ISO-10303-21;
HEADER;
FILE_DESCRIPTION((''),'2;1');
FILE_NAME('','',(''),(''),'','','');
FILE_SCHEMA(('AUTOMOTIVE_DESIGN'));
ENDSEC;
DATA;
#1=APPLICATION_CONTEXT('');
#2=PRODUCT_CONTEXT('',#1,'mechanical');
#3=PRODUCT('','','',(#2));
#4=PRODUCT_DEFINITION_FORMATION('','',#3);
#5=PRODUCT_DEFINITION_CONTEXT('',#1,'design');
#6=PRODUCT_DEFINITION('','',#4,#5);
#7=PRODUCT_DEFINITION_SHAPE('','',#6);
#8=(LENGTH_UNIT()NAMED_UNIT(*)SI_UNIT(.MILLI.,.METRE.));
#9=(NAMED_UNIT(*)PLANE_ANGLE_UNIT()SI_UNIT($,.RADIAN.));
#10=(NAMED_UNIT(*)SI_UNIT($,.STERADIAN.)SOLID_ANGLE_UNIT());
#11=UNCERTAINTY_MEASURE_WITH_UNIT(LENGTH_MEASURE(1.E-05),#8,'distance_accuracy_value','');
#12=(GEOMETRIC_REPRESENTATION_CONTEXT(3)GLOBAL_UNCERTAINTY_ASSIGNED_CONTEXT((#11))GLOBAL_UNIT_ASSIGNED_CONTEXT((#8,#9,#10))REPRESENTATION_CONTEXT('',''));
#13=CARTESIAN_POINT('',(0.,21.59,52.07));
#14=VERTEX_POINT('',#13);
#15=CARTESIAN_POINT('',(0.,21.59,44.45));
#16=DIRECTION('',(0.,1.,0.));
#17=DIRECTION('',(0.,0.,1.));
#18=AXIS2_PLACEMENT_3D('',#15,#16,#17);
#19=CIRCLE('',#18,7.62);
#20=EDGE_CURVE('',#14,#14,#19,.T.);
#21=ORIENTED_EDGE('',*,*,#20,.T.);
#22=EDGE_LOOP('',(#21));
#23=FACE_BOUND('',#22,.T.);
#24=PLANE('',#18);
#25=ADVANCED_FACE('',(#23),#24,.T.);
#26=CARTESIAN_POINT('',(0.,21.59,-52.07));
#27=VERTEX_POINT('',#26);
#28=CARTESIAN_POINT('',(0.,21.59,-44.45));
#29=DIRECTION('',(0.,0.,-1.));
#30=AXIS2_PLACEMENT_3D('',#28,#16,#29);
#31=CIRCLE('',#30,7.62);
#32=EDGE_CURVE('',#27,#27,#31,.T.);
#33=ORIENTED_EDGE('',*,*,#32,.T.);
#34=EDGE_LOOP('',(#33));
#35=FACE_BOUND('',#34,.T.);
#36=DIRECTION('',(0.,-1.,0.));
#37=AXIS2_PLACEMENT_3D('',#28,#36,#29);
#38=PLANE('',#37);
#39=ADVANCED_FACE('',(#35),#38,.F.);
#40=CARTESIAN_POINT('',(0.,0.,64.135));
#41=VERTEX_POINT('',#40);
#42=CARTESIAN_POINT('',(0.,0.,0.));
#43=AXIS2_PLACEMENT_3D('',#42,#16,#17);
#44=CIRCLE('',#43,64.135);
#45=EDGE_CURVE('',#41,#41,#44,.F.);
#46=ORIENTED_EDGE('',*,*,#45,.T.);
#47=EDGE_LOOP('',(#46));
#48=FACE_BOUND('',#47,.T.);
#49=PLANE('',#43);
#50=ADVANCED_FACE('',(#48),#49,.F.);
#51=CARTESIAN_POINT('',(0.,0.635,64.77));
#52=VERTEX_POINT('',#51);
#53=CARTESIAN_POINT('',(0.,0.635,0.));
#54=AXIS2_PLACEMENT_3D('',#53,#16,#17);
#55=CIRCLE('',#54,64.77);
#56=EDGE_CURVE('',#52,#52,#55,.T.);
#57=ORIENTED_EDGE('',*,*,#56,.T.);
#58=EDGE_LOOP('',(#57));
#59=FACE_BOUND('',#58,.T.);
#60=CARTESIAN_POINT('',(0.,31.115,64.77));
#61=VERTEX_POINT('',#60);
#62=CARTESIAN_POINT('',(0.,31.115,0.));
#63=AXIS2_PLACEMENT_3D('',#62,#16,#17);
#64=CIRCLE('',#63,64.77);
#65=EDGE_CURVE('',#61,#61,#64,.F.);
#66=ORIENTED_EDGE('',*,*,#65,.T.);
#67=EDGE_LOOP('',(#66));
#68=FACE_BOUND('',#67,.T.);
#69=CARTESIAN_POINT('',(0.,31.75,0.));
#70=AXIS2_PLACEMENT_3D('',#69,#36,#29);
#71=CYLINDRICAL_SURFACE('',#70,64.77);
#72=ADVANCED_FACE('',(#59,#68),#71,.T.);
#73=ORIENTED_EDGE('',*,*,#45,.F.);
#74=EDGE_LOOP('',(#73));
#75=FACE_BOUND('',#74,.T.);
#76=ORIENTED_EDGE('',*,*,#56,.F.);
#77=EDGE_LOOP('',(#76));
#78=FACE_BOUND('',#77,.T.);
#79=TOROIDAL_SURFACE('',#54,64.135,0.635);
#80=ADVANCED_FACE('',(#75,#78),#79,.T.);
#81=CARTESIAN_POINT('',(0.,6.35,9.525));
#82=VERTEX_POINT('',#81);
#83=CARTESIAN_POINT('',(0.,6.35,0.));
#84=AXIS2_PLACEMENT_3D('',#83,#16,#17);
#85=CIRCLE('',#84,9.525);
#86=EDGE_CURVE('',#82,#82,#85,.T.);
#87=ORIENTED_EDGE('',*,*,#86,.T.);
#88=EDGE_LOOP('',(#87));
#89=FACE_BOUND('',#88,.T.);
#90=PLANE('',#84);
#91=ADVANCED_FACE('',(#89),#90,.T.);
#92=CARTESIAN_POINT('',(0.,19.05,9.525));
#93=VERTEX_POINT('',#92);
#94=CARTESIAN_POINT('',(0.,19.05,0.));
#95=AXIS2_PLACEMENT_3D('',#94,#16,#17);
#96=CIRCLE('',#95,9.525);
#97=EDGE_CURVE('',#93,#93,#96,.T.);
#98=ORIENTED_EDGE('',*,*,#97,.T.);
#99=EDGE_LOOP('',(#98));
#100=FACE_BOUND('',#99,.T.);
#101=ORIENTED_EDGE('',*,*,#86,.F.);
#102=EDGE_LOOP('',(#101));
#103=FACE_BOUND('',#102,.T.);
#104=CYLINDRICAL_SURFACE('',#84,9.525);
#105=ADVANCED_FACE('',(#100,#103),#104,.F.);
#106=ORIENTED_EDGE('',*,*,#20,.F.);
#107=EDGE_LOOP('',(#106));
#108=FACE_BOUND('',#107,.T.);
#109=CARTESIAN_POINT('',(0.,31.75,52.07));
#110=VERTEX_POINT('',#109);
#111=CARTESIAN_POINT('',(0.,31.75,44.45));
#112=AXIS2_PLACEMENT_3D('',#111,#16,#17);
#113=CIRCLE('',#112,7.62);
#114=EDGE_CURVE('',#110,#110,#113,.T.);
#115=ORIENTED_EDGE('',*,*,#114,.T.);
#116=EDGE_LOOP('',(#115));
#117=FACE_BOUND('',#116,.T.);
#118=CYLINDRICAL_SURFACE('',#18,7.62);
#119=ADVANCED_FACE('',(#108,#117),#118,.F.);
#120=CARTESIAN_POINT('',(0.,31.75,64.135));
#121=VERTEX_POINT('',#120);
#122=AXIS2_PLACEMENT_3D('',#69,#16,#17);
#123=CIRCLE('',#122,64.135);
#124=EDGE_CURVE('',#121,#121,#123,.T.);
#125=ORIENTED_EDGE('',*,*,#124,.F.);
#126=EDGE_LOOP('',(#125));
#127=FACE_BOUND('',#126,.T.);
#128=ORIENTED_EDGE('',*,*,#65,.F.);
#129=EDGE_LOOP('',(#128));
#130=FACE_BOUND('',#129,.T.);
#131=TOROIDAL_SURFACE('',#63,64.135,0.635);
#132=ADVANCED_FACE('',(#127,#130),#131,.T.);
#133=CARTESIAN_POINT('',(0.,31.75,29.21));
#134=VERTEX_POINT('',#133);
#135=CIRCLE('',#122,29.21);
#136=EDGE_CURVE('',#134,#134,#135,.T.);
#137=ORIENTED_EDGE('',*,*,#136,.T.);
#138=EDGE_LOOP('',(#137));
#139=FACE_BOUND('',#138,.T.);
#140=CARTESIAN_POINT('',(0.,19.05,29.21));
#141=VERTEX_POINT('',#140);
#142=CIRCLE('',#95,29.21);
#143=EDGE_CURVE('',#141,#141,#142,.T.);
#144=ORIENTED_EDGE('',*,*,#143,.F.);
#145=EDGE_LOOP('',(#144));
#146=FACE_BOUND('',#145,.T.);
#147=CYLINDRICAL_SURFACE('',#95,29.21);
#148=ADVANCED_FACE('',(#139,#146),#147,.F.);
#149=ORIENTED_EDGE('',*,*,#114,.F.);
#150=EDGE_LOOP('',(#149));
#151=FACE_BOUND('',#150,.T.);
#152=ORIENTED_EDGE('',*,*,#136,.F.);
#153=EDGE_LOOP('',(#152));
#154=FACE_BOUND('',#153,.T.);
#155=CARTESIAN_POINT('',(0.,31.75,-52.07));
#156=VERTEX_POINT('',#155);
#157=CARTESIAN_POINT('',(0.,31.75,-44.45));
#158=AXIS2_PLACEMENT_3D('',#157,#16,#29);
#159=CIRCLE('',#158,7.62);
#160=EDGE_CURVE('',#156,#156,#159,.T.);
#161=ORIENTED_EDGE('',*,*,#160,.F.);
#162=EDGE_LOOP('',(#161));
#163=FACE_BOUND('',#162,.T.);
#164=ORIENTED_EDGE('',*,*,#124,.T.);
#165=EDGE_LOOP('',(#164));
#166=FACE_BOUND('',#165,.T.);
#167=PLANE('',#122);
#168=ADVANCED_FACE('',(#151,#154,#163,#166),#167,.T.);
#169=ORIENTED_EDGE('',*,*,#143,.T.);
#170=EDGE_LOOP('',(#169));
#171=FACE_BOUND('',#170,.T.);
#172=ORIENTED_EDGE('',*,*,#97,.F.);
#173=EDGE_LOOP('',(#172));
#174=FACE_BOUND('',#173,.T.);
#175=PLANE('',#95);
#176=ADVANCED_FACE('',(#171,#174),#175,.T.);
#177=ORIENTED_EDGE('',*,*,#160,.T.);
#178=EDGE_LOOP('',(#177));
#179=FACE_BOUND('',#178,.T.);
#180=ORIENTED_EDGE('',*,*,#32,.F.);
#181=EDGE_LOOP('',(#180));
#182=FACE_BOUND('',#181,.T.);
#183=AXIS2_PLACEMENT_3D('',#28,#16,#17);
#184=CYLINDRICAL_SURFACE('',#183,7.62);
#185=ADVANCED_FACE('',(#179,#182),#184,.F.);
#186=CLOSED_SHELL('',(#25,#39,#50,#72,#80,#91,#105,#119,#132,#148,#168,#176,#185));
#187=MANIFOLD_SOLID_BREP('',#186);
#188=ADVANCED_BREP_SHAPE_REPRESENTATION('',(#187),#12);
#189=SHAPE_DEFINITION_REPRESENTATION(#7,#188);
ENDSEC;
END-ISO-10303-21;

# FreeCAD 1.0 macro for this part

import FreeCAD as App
import Part
import Sketcher
from FreeCAD import Vector
Q = App.Units.Quantity


def edges_at(feature, points):
    """Names of the edges that pass closest to the given points."""
    edges = feature.Shape.Edges
    near = lambda p: min(range(len(edges)), key=lambda i: edges[i].distToShape(Part.Vertex(*p))[0])
    return sorted({f"Edge{near(p) + 1}" for p in points})

doc = App.newDocument("Part")
body = doc.addObject("PartDesign::Body", "Body")

sketch1 = doc.addObject("Sketcher::SketchObject", "Sketch")
body.addObject(sketch1)
sketch1.AttachmentSupport = (doc.XZ_Plane, [""])
sketch1.MapMode = "FlatFace"
sketch1.addGeometry(Part.Circle(Vector(0, 0, 0), Vector(0, 0, 1), 65), False)
sketch1.addConstraint([
    Sketcher.Constraint("Coincident", 0, 3, -1, 1),
    Sketcher.Constraint("Diameter", 0, Q("5.1 in")),
])
pad1 = doc.addObject("PartDesign::Pad", "Pad")
body.addObject(pad1)
pad1.Profile = sketch1
pad1.Length = Q("1.25 in")
pad1.Reversed = True
doc.recompute()

fillet = doc.addObject("PartDesign::Fillet", "Fillet")
body.addObject(fillet)
fillet.Base = (pad1, edges_at(pad1, [(0, 0, -64.77), (0, 31.75, -64.77)]))
fillet.Radius = Q("0.025 in")

sketch2 = doc.addObject("Sketcher::SketchObject", "Sketch001")
body.addObject(sketch2)
sketch2.AttachmentSupport = (doc.XZ_Plane, [""])
sketch2.MapMode = "FlatFace"
sketch2.AttachmentOffset = App.Placement(Vector(0, 0, -1.25 * 25.4), App.Rotation())
sketch2.addGeometry(Part.Circle(Vector(0, 0, 0), Vector(0, 0, 1), 29), False)
sketch2.addConstraint([
    Sketcher.Constraint("Coincident", 0, 3, -1, 1),
    Sketcher.Constraint("Diameter", 0, Q("2.3 in")),
])
pocket1 = doc.addObject("PartDesign::Pocket", "Pocket")
body.addObject(pocket1)
pocket1.Profile = sketch2
pocket1.Length = Q("0.5 in")
pocket1.Reversed = True

sketch3 = doc.addObject("Sketcher::SketchObject", "Sketch002")
body.addObject(sketch3)
sketch3.AttachmentSupport = (doc.XZ_Plane, [""])
sketch3.MapMode = "FlatFace"
sketch3.AttachmentOffset = App.Placement(Vector(0, 0, -0.75 * 25.4), App.Rotation())
sketch3.addGeometry(Part.Circle(Vector(0, 0, 0), Vector(0, 0, 1), 10), False)
sketch3.addConstraint([
    Sketcher.Constraint("Coincident", 0, 3, -1, 1),
    Sketcher.Constraint("Diameter", 0, Q("0.75 in")),
])
pocket2 = doc.addObject("PartDesign::Pocket", "Pocket001")
body.addObject(pocket2)
pocket2.Profile = sketch3
pocket2.Length = Q("0.5 in")
pocket2.Reversed = True

sketch4 = doc.addObject("Sketcher::SketchObject", "Sketch003")
body.addObject(sketch4)
sketch4.AttachmentSupport = (doc.XZ_Plane, [""])
sketch4.MapMode = "FlatFace"
sketch4.AttachmentOffset = App.Placement(Vector(0, 0, -1.25 * 25.4), App.Rotation())
sketch4.addGeometry([
    Part.Circle(Vector(0, 44, 0), Vector(0, 0, 1), 8),
    Part.Circle(Vector(0, -44, 0), Vector(0, 0, 1), 8),
], False)
sketch4.addConstraint([
    Sketcher.Constraint("Equal", 0, 1),
    Sketcher.Constraint("Symmetric", 0, 3, 1, 3, -1, 1),
    Sketcher.Constraint("PointOnObject", 0, 3, -2),
    Sketcher.Constraint("Diameter", 0, Q("0.6 in")),
    Sketcher.Constraint("DistanceY", 1, 3, 0, 3, Q("3.5 in")),
])
pocket3 = doc.addObject("PartDesign::Pocket", "Pocket002")
body.addObject(pocket3)
pocket3.Profile = sketch4
pocket3.Length = Q("0.4 in")
pocket3.Reversed = True

doc.recompute()
